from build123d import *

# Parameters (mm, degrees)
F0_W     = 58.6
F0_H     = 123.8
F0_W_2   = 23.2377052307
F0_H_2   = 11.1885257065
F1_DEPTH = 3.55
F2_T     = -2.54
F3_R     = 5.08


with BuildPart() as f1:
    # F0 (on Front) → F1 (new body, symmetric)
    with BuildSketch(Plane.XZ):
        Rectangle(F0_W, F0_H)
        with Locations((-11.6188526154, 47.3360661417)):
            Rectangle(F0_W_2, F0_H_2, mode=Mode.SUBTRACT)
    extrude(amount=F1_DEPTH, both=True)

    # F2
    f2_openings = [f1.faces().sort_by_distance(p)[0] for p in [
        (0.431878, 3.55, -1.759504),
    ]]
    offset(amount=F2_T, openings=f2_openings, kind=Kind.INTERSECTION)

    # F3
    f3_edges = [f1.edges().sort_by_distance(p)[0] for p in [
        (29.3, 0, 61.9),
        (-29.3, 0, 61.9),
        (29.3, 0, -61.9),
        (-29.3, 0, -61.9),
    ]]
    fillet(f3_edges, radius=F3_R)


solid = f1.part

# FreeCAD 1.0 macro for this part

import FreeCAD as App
import Part
import Sketcher
from FreeCAD import Vector


def edges_at(feature, points):
    """Names of the edges that pass closest to the given points."""
    edges = feature.Shape.Edges
    near = lambda p: min(range(len(edges)), key=lambda i: edges[i].distToShape(Part.Vertex(*p))[0])
    return sorted({f"Edge{near(p) + 1}" for p in points})


def faces_at(feature, points):
    """Names of the faces that lie closest to the given points."""
    faces = feature.Shape.Faces
    near = lambda p: min(range(len(faces)), key=lambda i: faces[i].distToShape(Part.Vertex(*p))[0])
    return sorted({f"Face{near(p) + 1}" for p in points})

doc = App.newDocument("Part")
body = doc.addObject("PartDesign::Body", "Body")

# Sketch on XZ plane
sketch1 = body.newObject("Sketcher::SketchObject", "Sketch")
sketch1.AttachmentSupport = (doc.getObject("XZ_Plane"), [""])
sketch1.MapMode = "FlatFace"
sketch1.addGeometry([
    Part.LineSegment(Vector(-29, 62, 0), Vector(-29, -62, 0)),  # 0
    Part.LineSegment(Vector(-29, -62, 0), Vector(29, -62, 0)),  # 1
    Part.LineSegment(Vector(29, -62, 0), Vector(29, 62, 0)),  # 2
    Part.LineSegment(Vector(29, 62, 0), Vector(-29, 62, 0)),  # 3
    Part.LineSegment(Vector(0, 42, 0), Vector(-23, 42, 0)),  # 4
    Part.LineSegment(Vector(-23, 42, 0), Vector(-23, 53, 0)),  # 5
    Part.LineSegment(Vector(-23, 53, 0), Vector(0, 53, 0)),  # 6
    Part.LineSegment(Vector(0, 53, 0), Vector(0, 42, 0)),  # 7
], False)
sketch1.addConstraint([
    Sketcher.Constraint("Coincident", 0, 2, 1, 1),
    Sketcher.Constraint("Coincident", 1, 2, 2, 1),
    Sketcher.Constraint("Coincident", 2, 2, 3, 1),
    Sketcher.Constraint("Coincident", 3, 2, 0, 1),
    Sketcher.Constraint("Coincident", 4, 2, 5, 1),
    Sketcher.Constraint("Coincident", 5, 2, 6, 1),
    Sketcher.Constraint("Coincident", 6, 2, 7, 1),
    Sketcher.Constraint("Coincident", 7, 2, 4, 1),
    Sketcher.Constraint("Vertical", 0),
    Sketcher.Constraint("Horizontal", 1),
    Sketcher.Constraint("Vertical", 2),
    Sketcher.Constraint("Horizontal", 3),
    Sketcher.Constraint("Horizontal", 4),
    Sketcher.Constraint("Vertical", 5),
    Sketcher.Constraint("Horizontal", 6),
    Sketcher.Constraint("Vertical", 7),
    Sketcher.Constraint("Symmetric", 0, 2, 2, 2, -1, 1),
    Sketcher.Constraint("PointOnObject", 6, 2, -2),
    Sketcher.Constraint("DistanceX", 1, 1, 1, 2, 58.6),
    Sketcher.Constraint("DistanceY", 0, 2, 0, 1, 123.8),
    Sketcher.Constraint("DistanceX", 4, 2, 4, 1, 23.237705),
    Sketcher.Constraint("DistanceY", 5, 1, 5, 2, 11.188526),
    Sketcher.Constraint("DistanceY", -1, 1, 5, 2, 52.930329),
])
pad1 = body.newObject("PartDesign::Pad", "Pad")
pad1.Profile = sketch1
pad1.Length = 7.1
pad1.Midplane = True
doc.recompute()

thickness = body.newObject("PartDesign::Thickness", "Thickness")
thickness.Base = (pad1, faces_at(pad1, [(0, 3.55, 0)]))
thickness.Value = 2.54
thickness.Reversed = True
thickness.Join = "Intersection"
doc.recompute()

fillet = body.newObject("PartDesign::Fillet", "Fillet")
fillet.Base = (thickness, edges_at(thickness, [
    (29.3, 0, 61.9),
    (-29.3, 0, 61.9),
    (29.3, 0, -61.9),
    (-29.3, 0, -61.9),
]))
fillet.Radius = 5.08

doc.recompute()
